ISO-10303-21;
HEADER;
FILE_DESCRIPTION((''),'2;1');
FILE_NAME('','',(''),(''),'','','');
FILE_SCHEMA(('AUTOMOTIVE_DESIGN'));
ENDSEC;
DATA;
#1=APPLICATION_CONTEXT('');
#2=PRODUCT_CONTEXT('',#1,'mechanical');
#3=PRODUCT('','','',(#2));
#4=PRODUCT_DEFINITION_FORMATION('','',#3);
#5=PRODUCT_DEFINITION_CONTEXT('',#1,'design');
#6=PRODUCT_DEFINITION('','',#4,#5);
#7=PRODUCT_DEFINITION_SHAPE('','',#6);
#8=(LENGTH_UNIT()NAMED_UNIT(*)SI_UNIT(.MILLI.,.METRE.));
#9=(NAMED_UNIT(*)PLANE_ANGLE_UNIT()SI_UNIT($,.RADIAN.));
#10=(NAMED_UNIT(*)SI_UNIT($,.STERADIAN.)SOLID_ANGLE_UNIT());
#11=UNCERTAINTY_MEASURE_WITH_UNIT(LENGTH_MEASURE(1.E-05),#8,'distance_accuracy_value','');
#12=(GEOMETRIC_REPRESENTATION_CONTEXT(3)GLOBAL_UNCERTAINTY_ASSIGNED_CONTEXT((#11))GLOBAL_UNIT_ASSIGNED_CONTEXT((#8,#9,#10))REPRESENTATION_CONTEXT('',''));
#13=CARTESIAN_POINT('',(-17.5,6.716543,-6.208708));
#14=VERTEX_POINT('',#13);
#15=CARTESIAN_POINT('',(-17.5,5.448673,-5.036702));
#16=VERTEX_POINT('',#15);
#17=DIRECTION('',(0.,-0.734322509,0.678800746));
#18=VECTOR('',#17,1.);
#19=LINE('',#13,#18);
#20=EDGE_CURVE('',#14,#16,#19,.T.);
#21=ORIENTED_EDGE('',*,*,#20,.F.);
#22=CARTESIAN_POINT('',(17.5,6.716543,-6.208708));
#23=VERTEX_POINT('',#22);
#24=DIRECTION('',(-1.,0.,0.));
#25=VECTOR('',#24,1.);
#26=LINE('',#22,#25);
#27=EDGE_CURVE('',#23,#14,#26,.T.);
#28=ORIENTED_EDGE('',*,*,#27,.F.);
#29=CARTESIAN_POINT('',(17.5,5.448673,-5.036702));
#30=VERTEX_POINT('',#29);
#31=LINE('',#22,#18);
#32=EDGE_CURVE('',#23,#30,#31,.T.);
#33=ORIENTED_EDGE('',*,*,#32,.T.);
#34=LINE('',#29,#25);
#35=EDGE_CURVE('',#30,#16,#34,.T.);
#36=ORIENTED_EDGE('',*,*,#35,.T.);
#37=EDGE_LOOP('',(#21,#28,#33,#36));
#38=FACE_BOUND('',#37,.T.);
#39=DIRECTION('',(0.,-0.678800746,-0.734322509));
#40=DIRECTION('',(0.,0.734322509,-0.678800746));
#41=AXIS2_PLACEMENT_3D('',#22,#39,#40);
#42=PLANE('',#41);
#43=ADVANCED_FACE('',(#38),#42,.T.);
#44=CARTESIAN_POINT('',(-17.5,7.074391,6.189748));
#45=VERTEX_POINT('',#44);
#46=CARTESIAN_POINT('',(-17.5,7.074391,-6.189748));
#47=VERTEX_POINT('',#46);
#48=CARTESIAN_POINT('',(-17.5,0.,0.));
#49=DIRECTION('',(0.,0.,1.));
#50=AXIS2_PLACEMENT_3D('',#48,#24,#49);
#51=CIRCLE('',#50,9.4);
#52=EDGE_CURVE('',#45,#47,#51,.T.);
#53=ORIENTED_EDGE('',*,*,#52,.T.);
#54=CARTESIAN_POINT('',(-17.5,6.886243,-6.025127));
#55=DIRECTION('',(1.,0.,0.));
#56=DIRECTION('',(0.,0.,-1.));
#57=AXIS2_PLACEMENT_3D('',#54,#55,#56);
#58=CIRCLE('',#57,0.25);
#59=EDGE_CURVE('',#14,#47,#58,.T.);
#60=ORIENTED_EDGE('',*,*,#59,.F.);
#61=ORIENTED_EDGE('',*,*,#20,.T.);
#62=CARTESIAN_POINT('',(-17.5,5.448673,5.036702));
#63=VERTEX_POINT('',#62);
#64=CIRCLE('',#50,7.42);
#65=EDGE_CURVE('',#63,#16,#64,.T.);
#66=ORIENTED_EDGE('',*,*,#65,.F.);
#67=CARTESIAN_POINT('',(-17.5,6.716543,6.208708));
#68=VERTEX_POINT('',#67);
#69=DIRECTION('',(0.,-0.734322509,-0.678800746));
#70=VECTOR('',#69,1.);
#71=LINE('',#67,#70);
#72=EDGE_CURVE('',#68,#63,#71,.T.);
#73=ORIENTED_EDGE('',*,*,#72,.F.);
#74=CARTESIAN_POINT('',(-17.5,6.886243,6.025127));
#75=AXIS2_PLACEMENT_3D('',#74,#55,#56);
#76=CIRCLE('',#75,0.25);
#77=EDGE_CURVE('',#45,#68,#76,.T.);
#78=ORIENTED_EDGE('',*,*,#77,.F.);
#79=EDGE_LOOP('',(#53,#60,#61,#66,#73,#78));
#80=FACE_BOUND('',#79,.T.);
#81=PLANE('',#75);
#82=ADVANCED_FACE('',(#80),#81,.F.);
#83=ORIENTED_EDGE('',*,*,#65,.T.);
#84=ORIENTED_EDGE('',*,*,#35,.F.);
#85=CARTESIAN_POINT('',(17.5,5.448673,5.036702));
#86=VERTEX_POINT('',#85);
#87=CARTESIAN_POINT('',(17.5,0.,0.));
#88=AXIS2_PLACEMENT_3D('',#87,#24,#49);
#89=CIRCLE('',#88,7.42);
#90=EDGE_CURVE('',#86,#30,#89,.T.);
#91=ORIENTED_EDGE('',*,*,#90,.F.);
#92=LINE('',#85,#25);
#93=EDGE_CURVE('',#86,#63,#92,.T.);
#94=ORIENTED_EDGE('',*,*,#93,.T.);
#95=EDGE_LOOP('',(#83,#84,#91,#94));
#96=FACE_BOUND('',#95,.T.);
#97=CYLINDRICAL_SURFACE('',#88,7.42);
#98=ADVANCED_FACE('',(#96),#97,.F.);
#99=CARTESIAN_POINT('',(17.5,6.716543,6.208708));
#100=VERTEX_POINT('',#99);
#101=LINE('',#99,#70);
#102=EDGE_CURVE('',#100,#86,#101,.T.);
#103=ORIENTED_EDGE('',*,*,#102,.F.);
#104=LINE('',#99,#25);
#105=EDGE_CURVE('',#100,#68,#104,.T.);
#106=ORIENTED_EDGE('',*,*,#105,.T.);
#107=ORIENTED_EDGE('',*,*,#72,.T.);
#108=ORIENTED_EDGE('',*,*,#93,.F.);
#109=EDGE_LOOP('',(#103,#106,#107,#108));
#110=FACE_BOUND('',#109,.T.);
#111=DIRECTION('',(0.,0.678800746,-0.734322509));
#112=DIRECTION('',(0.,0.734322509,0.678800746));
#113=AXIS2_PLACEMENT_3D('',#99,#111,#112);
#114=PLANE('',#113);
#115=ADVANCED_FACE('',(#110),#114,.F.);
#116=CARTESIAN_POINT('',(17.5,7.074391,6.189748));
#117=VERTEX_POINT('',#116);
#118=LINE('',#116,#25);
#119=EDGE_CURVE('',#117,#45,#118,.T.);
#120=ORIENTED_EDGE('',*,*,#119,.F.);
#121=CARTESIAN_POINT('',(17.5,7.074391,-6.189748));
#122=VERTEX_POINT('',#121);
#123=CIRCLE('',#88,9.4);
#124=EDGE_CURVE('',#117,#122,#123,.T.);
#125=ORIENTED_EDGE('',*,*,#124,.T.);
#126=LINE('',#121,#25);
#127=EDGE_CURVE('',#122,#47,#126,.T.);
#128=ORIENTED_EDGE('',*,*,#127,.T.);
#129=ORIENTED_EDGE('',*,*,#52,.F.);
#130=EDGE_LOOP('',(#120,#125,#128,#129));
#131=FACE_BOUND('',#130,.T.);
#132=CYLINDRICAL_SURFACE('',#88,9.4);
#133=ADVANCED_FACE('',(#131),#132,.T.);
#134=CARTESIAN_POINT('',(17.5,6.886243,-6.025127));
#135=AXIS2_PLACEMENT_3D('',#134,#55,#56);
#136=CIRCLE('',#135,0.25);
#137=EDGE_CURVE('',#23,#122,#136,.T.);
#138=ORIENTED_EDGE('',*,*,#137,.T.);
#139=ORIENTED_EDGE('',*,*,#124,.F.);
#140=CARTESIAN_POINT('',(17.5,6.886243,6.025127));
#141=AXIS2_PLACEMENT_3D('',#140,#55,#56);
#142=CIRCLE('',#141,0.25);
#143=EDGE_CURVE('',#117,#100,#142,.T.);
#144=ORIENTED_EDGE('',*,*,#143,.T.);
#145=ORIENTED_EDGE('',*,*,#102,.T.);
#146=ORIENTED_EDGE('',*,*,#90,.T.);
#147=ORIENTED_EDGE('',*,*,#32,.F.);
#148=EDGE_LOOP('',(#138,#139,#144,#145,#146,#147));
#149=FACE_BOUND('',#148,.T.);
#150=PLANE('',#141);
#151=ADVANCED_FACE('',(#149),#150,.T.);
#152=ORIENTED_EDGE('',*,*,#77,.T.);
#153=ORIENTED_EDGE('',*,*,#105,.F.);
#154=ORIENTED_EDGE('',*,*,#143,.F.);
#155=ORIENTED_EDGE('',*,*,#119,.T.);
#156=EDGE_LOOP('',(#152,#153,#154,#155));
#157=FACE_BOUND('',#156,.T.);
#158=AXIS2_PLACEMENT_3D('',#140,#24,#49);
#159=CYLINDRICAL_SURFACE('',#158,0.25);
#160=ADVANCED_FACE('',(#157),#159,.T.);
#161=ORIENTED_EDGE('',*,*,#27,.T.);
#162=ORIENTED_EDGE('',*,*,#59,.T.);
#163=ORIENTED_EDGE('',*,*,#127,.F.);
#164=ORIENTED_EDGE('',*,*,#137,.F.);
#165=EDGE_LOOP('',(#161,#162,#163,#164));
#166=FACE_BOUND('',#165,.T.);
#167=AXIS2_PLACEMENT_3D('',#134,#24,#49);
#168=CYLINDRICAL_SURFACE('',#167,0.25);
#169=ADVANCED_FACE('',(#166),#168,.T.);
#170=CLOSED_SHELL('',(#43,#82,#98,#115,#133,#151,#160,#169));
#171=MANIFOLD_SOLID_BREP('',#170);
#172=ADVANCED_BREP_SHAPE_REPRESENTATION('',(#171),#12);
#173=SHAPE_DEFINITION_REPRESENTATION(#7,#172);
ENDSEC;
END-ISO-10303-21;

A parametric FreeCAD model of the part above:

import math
import FreeCAD as App
import Part
import Sketcher
Q = App.Units.Quantity

doc = App.newDocument("Part")
params = doc.addObject("Spreadsheet::Sheet", "Params")
for row, (alias, value) in enumerate([
    ("sketch1_radius", "9.4 mm"),
    ("sketch1_radius2", "7.42 mm"),
    ("sketch1_radius3", "0.25 mm"),
    ("pad1_length", "35 mm"),
], start=1):
    params.set(f"A{row}", alias)
    params.set(f"B{row}", "=" + value)
    params.setAlias(f"B{row}", alias)

body = doc.addObject("PartDesign::Body", "Body")

sketch1 = body.newObject("Sketcher::SketchObject", "Sketch")
sketch1.AttachmentSupport = (doc.getObject("YZ_Plane"), [""])
sketch1.MapMode = "FlatFace"
sketch1.addGeometry(Part.LineSegment(App.Vector(6.72, 6.21, 0), App.Vector(5.45, 5.04, 0)), False)
sketch1.addGeometry(Part.ArcOfCircle(Part.Circle(App.Vector(0, 0, 0), App.Vector(0, 0, 1), 7.42), math.radians(-43), math.radians(43)), False)
sketch1.addGeometry(Part.LineSegment(App.Vector(5.45, -5.04, 0), App.Vector(6.72, -6.21, 0)), False)
sketch1.addGeometry(Part.ArcOfCircle(Part.Circle(App.Vector(6.89, -6.03, 0), App.Vector(0, 0, 1), 0.25), math.radians(-133), math.radians(-41)), False)
sketch1.addGeometry(Part.ArcOfCircle(Part.Circle(App.Vector(0, 0, 0), App.Vector(0, 0, 1), 9.4), math.radians(-41), math.radians(41)), False)
sketch1.addGeometry(Part.ArcOfCircle(Part.Circle(App.Vector(6.89, 6.03, 0), App.Vector(0, 0, 1), 0.25), math.radians(41), math.radians(133)), False)
sketch1.addConstraint(Sketcher.Constraint("Coincident", 0, 2, 1, 2))
sketch1.addConstraint(Sketcher.Constraint("Coincident", 1, 1, 2, 1))
sketch1.addConstraint(Sketcher.Constraint("Tangent", 2, 2, 3, 1))
sketch1.addConstraint(Sketcher.Constraint("Tangent", 3, 2, 4, 1))
sketch1.addConstraint(Sketcher.Constraint("Tangent", 4, 2, 5, 1))
sketch1.addConstraint(Sketcher.Constraint("Tangent", 5, 2, 0, 1))
sketch1.addConstraint(Sketcher.Constraint("Coincident", 1, 3, -1, 1))
sketch1.addConstraint(Sketcher.Constraint("Coincident", 4, 3, -1, 1))
sketch1.addConstraint(Sketcher.Constraint("Equal", 3, 5))
sketch1.addConstraint(Sketcher.Constraint("Symmetric", 2, 2, 5, 2, -1))
sketch1.addConstraint(Sketcher.Constraint("Radius", 4, 9.4))
sketch1.addConstraint(Sketcher.Constraint("Radius", 1, 7.42))
sketch1.addConstraint(Sketcher.Constraint("Radius", 3, 0.25))
sketch1.addConstraint(Sketcher.Constraint("Angle", 0, Q("-137.25 deg")))
sketch1.addConstraint(Sketcher.Constraint("DistanceY", -1, 1, 0, 2, 5.036702))
sketch1.setExpression("Constraints[10]", "Params.sketch1_radius")
sketch1.setExpression("Constraints[11]", "Params.sketch1_radius2")
sketch1.setExpression("Constraints[12]", "Params.sketch1_radius3")
pad1 = body.newObject("PartDesign::Pad", "Pad")
pad1.Profile = sketch1
pad1.setExpression("Length", "Params.pad1_length")
pad1.Midplane = True

doc.recompute()
